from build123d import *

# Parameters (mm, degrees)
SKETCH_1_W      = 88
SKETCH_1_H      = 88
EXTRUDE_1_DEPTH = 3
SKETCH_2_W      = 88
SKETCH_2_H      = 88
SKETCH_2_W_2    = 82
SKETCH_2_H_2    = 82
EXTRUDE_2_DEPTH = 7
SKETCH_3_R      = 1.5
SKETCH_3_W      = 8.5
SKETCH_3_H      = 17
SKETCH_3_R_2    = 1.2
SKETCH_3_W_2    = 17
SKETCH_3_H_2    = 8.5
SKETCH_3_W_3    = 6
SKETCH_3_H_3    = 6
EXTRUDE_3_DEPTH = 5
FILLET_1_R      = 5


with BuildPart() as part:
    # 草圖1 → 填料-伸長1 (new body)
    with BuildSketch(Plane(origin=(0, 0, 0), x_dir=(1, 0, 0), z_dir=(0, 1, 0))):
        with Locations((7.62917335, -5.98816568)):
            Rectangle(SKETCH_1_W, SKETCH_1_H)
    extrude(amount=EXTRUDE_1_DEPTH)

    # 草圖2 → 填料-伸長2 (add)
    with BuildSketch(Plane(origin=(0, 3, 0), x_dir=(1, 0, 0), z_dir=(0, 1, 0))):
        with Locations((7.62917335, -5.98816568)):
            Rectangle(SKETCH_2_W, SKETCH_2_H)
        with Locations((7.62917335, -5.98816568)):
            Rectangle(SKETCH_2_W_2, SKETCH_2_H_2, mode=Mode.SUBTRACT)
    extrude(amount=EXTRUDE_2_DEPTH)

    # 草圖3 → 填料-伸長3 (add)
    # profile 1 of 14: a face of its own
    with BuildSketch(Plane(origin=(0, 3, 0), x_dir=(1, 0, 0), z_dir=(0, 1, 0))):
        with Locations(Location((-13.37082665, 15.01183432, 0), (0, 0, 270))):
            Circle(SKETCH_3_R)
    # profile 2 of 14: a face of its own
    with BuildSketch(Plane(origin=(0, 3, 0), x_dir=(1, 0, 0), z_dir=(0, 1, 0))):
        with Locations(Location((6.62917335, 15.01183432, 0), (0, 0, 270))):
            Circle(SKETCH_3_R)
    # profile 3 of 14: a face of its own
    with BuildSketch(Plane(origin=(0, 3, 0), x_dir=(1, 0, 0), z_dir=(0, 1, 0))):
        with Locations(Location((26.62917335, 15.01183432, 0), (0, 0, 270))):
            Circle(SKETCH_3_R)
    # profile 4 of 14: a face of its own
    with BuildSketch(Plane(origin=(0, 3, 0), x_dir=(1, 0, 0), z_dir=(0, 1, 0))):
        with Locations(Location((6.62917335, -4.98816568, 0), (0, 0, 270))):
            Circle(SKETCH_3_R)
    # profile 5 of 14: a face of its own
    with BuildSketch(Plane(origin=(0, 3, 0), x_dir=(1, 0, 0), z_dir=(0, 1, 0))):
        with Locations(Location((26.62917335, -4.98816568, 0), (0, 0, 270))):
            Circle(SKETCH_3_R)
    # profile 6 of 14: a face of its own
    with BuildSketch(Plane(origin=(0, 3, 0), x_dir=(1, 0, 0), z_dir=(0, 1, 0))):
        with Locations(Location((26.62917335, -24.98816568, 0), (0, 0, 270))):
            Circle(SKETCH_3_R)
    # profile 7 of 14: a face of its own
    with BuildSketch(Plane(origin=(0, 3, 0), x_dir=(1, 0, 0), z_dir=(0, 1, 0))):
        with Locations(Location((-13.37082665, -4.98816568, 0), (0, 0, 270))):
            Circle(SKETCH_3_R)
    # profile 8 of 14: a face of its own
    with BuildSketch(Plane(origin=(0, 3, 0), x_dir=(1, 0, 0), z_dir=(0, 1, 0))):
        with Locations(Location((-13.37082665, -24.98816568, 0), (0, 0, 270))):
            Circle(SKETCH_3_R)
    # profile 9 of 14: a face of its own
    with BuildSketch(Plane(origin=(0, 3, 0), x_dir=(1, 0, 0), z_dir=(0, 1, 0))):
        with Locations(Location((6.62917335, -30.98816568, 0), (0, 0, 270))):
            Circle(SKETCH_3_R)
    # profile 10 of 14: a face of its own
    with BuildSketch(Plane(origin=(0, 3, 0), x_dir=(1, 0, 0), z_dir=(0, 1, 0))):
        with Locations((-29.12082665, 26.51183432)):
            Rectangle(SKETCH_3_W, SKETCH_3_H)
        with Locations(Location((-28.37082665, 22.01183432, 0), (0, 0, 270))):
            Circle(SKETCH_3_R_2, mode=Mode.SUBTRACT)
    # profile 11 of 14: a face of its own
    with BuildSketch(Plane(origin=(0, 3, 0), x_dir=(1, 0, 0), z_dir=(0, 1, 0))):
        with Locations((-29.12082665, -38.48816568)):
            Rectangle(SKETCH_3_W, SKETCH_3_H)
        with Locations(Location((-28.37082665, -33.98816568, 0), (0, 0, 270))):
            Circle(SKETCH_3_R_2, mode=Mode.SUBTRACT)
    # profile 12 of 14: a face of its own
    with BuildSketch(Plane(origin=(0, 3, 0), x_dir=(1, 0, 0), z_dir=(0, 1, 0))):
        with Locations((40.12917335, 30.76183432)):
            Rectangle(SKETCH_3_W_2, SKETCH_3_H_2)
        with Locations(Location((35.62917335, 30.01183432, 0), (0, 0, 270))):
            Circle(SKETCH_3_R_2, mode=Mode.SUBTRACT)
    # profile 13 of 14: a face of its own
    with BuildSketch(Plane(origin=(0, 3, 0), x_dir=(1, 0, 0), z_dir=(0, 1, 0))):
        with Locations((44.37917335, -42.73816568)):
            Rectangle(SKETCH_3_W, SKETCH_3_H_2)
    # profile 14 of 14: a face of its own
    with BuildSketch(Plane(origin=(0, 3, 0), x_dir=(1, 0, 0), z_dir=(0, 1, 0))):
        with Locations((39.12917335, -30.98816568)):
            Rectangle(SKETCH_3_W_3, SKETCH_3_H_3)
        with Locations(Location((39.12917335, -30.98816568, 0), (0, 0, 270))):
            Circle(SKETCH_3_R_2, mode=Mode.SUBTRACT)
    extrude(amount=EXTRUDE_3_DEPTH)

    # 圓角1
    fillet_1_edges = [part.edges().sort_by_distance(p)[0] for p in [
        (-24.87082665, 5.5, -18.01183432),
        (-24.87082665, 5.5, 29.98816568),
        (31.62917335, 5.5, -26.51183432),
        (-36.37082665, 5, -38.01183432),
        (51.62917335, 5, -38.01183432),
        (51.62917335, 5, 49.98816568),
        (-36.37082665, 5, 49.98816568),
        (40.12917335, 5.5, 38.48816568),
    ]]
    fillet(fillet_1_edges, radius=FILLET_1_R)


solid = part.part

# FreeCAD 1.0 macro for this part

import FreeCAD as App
import Part
import Sketcher
Q = App.Units.Quantity


def edges_at(feature, points):
    """Names of the edges that pass closest to the given points."""
    edges = feature.Shape.Edges
    near = lambda p: min(range(len(edges)), key=lambda i: edges[i].distToShape(Part.Vertex(*p))[0])
    return sorted({f"Edge{near(p) + 1}" for p in points})


def add_polygon(sketch, points):
    """Adds a closed chain of lines whose ends are joined by coincident constraints."""
    first, n = sketch.GeometryCount, len(points)
    for a, b in zip(points, points[1:] + points[:1]):
        sketch.addGeometry(Part.LineSegment(App.Vector(*a, 0), App.Vector(*b, 0)), False)
    for i in range(n):
        sketch.addConstraint(Sketcher.Constraint("Coincident", first + i, 2, first + (i + 1) % n, 1))

doc = App.newDocument("Part")
params = doc.addObject("Spreadsheet::Sheet", "Params")
for row, (alias, value) in enumerate([
    ("sketch1_width", "88 mm"),
    ("pad1_length", "3 mm"),
    ("sketch2_width", "88 mm"),
    ("sketch2_width2", "82 mm"),
    ("pad2_length", "7 mm"),
    ("sketch3_diameter", "3 mm"),
    ("sketch3_diameter2", "2.4 mm"),
    ("sketch3_width", "17 mm"),
    ("sketch3_width2", "6 mm"),
    ("sketch3_width3", "8.5 mm"),
    ("pad3_length", "5 mm"),
    ("fillet_radius", "5 mm"),
], start=1):
    params.set(f"A{row}", alias)
    params.set(f"B{row}", "=" + value)
    params.setAlias(f"B{row}", alias)

body = doc.addObject("PartDesign::Body", "Body")

sketch1 = body.newObject("Sketcher::SketchObject", "Sketch")
sketch1.AttachmentSupport = (doc.getObject("XZ_Plane"), [""])
sketch1.MapMode = "FlatFace"
add_polygon(sketch1, [(-36.370827, -38.011834), (-36.370827, 49.988166), (51.629173, 49.988166), (51.629173, -38.011834)])
sketch1.addConstraint(Sketcher.Constraint("Vertical", 0))
sketch1.addConstraint(Sketcher.Constraint("Horizontal", 1))
sketch1.addConstraint(Sketcher.Constraint("Vertical", 2))
sketch1.addConstraint(Sketcher.Constraint("Horizontal", 3))
sketch1.addConstraint(Sketcher.Constraint("Equal", 3, 0))
sketch1.addConstraint(Sketcher.Constraint("DistanceX", 1, 1, 1, 2, Q("88 mm")))
sketch1.addConstraint(Sketcher.Constraint("DistanceX", 0, 2, -1, 1, Q("36.370827 mm")))
sketch1.addConstraint(Sketcher.Constraint("DistanceY", -1, 1, 0, 2, Q("49.988166 mm")))
sketch1.setExpression("Constraints[9]", "Params.sketch1_width")
pad1 = body.newObject("PartDesign::Pad", "Pad")
pad1.Profile = sketch1
pad1.setExpression("Length", "Params.pad1_length")
pad1.Reversed = True

sketch2 = body.newObject("Sketcher::SketchObject", "Sketch001")
sketch2.AttachmentSupport = (doc.getObject("XZ_Plane"), [""])
sketch2.MapMode = "FlatFace"
sketch2.AttachmentOffset = App.Placement(App.Vector(0, 0, -3), App.Rotation())
add_polygon(sketch2, [(-36.370827, -38.011834), (-36.370827, 49.988166), (51.629173, 49.988166), (51.629173, -38.011834)])
add_polygon(sketch2, [(48.629173, 46.988166), (-33.370827, 46.988166), (-33.370827, -35.011834), (48.629173, -35.011834)])
sketch2.addConstraint(Sketcher.Constraint("Vertical", 0))
sketch2.addConstraint(Sketcher.Constraint("Horizontal", 1))
sketch2.addConstraint(Sketcher.Constraint("Vertical", 2))
sketch2.addConstraint(Sketcher.Constraint("Horizontal", 3))
sketch2.addConstraint(Sketcher.Constraint("Horizontal", 4))
sketch2.addConstraint(Sketcher.Constraint("Vertical", 5))
sketch2.addConstraint(Sketcher.Constraint("Horizontal", 6))
sketch2.addConstraint(Sketcher.Constraint("Vertical", 7))
sketch2.addConstraint(Sketcher.Constraint("Equal", 3, 0))
sketch2.addConstraint(Sketcher.Constraint("Equal", 6, 5))
sketch2.addConstraint(Sketcher.Constraint("DistanceX", 1, 1, 1, 2, Q("88 mm")))
sketch2.addConstraint(Sketcher.Constraint("DistanceX", 4, 2, 4, 1, Q("82 mm")))
sketch2.addConstraint(Sketcher.Constraint("DistanceX", 0, 2, 4, 2, Q("3 mm")))
sketch2.addConstraint(Sketcher.Constraint("DistanceY", 4, 2, 0, 2, Q("3 mm")))
sketch2.addConstraint(Sketcher.Constraint("DistanceX", 0, 2, -1, 1, Q("36.370827 mm")))
sketch2.addConstraint(Sketcher.Constraint("DistanceY", -1, 1, 0, 2, Q("49.988166 mm")))
sketch2.setExpression("Constraints[18]", "Params.sketch2_width")
sketch2.setExpression("Constraints[19]", "Params.sketch2_width2")
pad2 = body.newObject("PartDesign::Pad", "Pad001")
pad2.Profile = sketch2
pad2.setExpression("Length", "Params.pad2_length")
pad2.Reversed = True

sketch3 = body.newObject("Sketcher::SketchObject", "Sketch002")
sketch3.AttachmentSupport = (doc.getObject("XZ_Plane"), [""])
sketch3.MapMode = "FlatFace"
sketch3.AttachmentOffset = App.Placement(App.Vector(0, 0, -3), App.Rotation())
sketch3.addGeometry(Part.Circle(App.Vector(-13.370827, -15.011834, 0), App.Vector(0, 0, 1), 1.5), False)
sketch3.addGeometry(Part.Circle(App.Vector(6.629173, -15.011834, 0), App.Vector(0, 0, 1), 1.5), False)
sketch3.addGeometry(Part.Circle(App.Vector(26.629173, -15.011834, 0), App.Vector(0, 0, 1), 1.5), False)
sketch3.addGeometry(Part.Circle(App.Vector(6.629173, 4.988166, 0), App.Vector(0, 0, 1), 1.5), False)
sketch3.addGeometry(Part.Circle(App.Vector(26.629173, 4.988166, 0), App.Vector(0, 0, 1), 1.5), False)
sketch3.addGeometry(Part.Circle(App.Vector(26.629173, 24.988166, 0), App.Vector(0, 0, 1), 1.5), False)
sketch3.addGeometry(Part.Circle(App.Vector(-13.370827, 4.988166, 0), App.Vector(0, 0, 1), 1.5), False)
sketch3.addGeometry(Part.Circle(App.Vector(-13.370827, 24.988166, 0), App.Vector(0, 0, 1), 1.5), False)
sketch3.addGeometry(Part.Circle(App.Vector(6.629173, 30.988166, 0), App.Vector(0, 0, 1), 1.5), False)
add_polygon(sketch3, [(-33.370827, -35.011834), (-33.370827, -18.011834), (-24.870827, -18.011834), (-24.870827, -35.011834)])
sketch3.addGeometry(Part.Circle(App.Vector(-28.370827, -22.011834, 0), App.Vector(0, 0, 1), 1.2), False)
add_polygon(sketch3, [(-33.370827, 29.988166), (-33.370827, 46.988166), (-24.870827, 46.988166), (-24.870827, 29.988166)])
sketch3.addGeometry(Part.Circle(App.Vector(-28.370827, 33.988166, 0), App.Vector(0, 0, 1), 1.2), False)
add_polygon(sketch3, [(31.629173, -35.011834), (31.629173, -26.511834), (48.629173, -26.511834), (48.629173, -35.011834)])
sketch3.addGeometry(Part.Circle(App.Vector(35.629173, -30.011834, 0), App.Vector(0, 0, 1), 1.2), False)
add_polygon(sketch3, [(40.129173, 38.488166), (40.129173, 46.988166), (48.629173, 46.988166), (48.629173, 38.488166)])
add_polygon(sketch3, [(36.129173, 27.988166), (36.129173, 33.988166), (42.129173, 33.988166), (42.129173, 27.988166)])
sketch3.addGeometry(Part.Circle(App.Vector(39.129173, 30.988166, 0), App.Vector(0, 0, 1), 1.2), False)
sketch3.addConstraint(Sketcher.Constraint("Vertical", 9))
sketch3.addConstraint(Sketcher.Constraint("Horizontal", 10))
sketch3.addConstraint(Sketcher.Constraint("Vertical", 11))
sketch3.addConstraint(Sketcher.Constraint("Horizontal", 12))
sketch3.addConstraint(Sketcher.Constraint("Vertical", 14))
sketch3.addConstraint(Sketcher.Constraint("Horizontal", 15))
sketch3.addConstraint(Sketcher.Constraint("Vertical", 16))
sketch3.addConstraint(Sketcher.Constraint("Horizontal", 17))
sketch3.addConstraint(Sketcher.Constraint("Vertical", 19))
sketch3.addConstraint(Sketcher.Constraint("Horizontal", 20))
sketch3.addConstraint(Sketcher.Constraint("Vertical", 21))
sketch3.addConstraint(Sketcher.Constraint("Horizontal", 22))
sketch3.addConstraint(Sketcher.Constraint("Vertical", 24))
sketch3.addConstraint(Sketcher.Constraint("Horizontal", 25))
sketch3.addConstraint(Sketcher.Constraint("Vertical", 26))
sketch3.addConstraint(Sketcher.Constraint("Horizontal", 27))
sketch3.addConstraint(Sketcher.Constraint("Vertical", 28))
sketch3.addConstraint(Sketcher.Constraint("Horizontal", 29))
sketch3.addConstraint(Sketcher.Constraint("Vertical", 30))
sketch3.addConstraint(Sketcher.Constraint("Horizontal", 31))
sketch3.addConstraint(Sketcher.Constraint("Equal", 0, 1))
sketch3.addConstraint(Sketcher.Constraint("Equal", 1, 2))
sketch3.addConstraint(Sketcher.Constraint("Equal", 2, 3))
sketch3.addConstraint(Sketcher.Constraint("Equal", 3, 4))
sketch3.addConstraint(Sketcher.Constraint("Equal", 4, 5))
sketch3.addConstraint(Sketcher.Constraint("Equal", 5, 6))
sketch3.addConstraint(Sketcher.Constraint("Equal", 6, 7))
sketch3.addConstraint(Sketcher.Constraint("Equal", 7, 8))
sketch3.addConstraint(Sketcher.Constraint("Equal", 13, 18))
sketch3.addConstraint(Sketcher.Constraint("Equal", 18, 23))
sketch3.addConstraint(Sketcher.Constraint("Equal", 23, 32))
sketch3.addConstraint(Sketcher.Constraint("Horizontal", 0, 3, 1, 3))
sketch3.addConstraint(Sketcher.Constraint("Horizontal", 1, 3, 2, 3))
sketch3.addConstraint(Sketcher.Constraint("Horizontal", 3, 3, 4, 3))
sketch3.addConstraint(Sketcher.Constraint("Horizontal", 4, 3, 6, 3))
sketch3.addConstraint(Sketcher.Constraint("Horizontal", 5, 3, 7, 3))
sketch3.addConstraint(Sketcher.Constraint("Horizontal", 8, 3, 32, 3))
sketch3.addConstraint(Sketcher.Constraint("Horizontal", 12, 2, 21, 2))
sketch3.addConstraint(Sketcher.Constraint("Horizontal", 15, 2, 24, 2))
sketch3.addConstraint(Sketcher.Constraint("Horizontal", 18, 3, 28, 2))
sketch3.addConstraint(Sketcher.Constraint("Vertical", 1, 3, 3, 3))
sketch3.addConstraint(Sketcher.Constraint("Vertical", 2, 3, 4, 3))
sketch3.addConstraint(Sketcher.Constraint("Vertical", 4, 3, 5, 3))
sketch3.addConstraint(Sketcher.Constraint("Vertical", 0, 3, 6, 3))
sketch3.addConstraint(Sketcher.Constraint("Vertical", 6, 3, 7, 3))
sketch3.addConstraint(Sketcher.Constraint("Vertical", 3, 3, 8, 3))
sketch3.addConstraint(Sketcher.Constraint("Vertical", 13, 3, 18, 3))
sketch3.addConstraint(Sketcher.Constraint("Vertical", 12, 2, 14, 2))
sketch3.addConstraint(Sketcher.Constraint("Vertical", 11, 2, 15, 2))
sketch3.addConstraint(Sketcher.Constraint("Vertical", 21, 2, 25, 2))
sketch3.addConstraint(Sketcher.Constraint("Equal", 17, 25))
sketch3.addConstraint(Sketcher.Constraint("Equal", 22, 9))
sketch3.addConstraint(Sketcher.Constraint("Equal", 11, 14))
sketch3.addConstraint(Sketcher.Constraint("Equal", 27, 19))
sketch3.addConstraint(Sketcher.Constraint("Equal", 21, 24))
sketch3.addConstraint(Sketcher.Constraint("Equal", 31, 28))
sketch3.addConstraint(Sketcher.Constraint("Diameter", 0, Q("3 mm")))
sketch3.addConstraint(Sketcher.Constraint("Diameter", 13, Q("2.4 mm")))
sketch3.addConstraint(Sketcher.Constraint("DistanceX", 20, 1, 20, 2, Q("17 mm")))
sketch3.addConstraint(Sketcher.Constraint("DistanceX", 29, 1, 29, 2, Q("6 mm")))
sketch3.addConstraint(Sketcher.Constraint("DistanceX", 10, 1, 10, 2, Q("8.5 mm")))
sketch3.addConstraint(Sketcher.Constraint("DistanceX", 0, 3, 1, 3, Q("20 mm")))
sketch3.addConstraint(Sketcher.Constraint("DistanceX", 1, 3, 2, 3, Q("20 mm")))
sketch3.addConstraint(Sketcher.Constraint("DistanceY", 1, 3, 3, 3, Q("20 mm")))
sketch3.addConstraint(Sketcher.Constraint("DistanceY", 4, 3, 5, 3, Q("20 mm")))
sketch3.addConstraint(Sketcher.Constraint("DistanceY", 5, 3, 8, 3, Q("6 mm")))
sketch3.addConstraint(Sketcher.Constraint("DistanceX", 13, 3, 0, 3, Q("15 mm")))
sketch3.addConstraint(Sketcher.Constraint("DistanceY", 13, 3, 0, 3, Q("7 mm")))
sketch3.addConstraint(Sketcher.Constraint("DistanceY", 7, 3, 18, 3, Q("9 mm")))
sketch3.addConstraint(Sketcher.Constraint("DistanceX", 2, 3, 23, 3, Q("9 mm")))
sketch3.addConstraint(Sketcher.Constraint("DistanceY", 23, 3, 2, 3, Q("15 mm")))
sketch3.addConstraint(Sketcher.Constraint("DistanceX", 9, 2, 13, 3, Q("5 mm")))
sketch3.addConstraint(Sketcher.Constraint("DistanceY", 13, 3, 9, 2, Q("4 mm")))
sketch3.addConstraint(Sketcher.Constraint("DistanceY", 18, 3, 14, 2, Q("13 mm")))
sketch3.addConstraint(Sketcher.Constraint("DistanceX", 19, 2, 23, 3, Q("4 mm")))
sketch3.addConstraint(Sketcher.Constraint("DistanceX", 32, 3, 24, 2, Q("1 mm")))
sketch3.addConstraint(Sketcher.Constraint("DistanceX", 28, 2, 32, 3, Q("3 mm")))
sketch3.addConstraint(Sketcher.Constraint("DistanceX", 0, 3, -1, 1, Q("13.370827 mm")))
sketch3.addConstraint(Sketcher.Constraint("DistanceY", 0, 3, -1, 1, Q("15.011834 mm")))
sketch3.setExpression("Constraints[76]", "Params.sketch3_diameter")
sketch3.setExpression("Constraints[77]", "Params.sketch3_diameter2")
sketch3.setExpression("Constraints[78]", "Params.sketch3_width")
sketch3.setExpression("Constraints[79]", "Params.sketch3_width2")
sketch3.setExpression("Constraints[80]", "Params.sketch3_width3")
pad3 = body.newObject("PartDesign::Pad", "Pad002")
pad3.Profile = sketch3
pad3.setExpression("Length", "Params.pad3_length")
pad3.Reversed = True
doc.recompute()

fillet = body.newObject("PartDesign::Fillet", "Fillet")
fillet.Base = (pad3, edges_at(pad3, [
    (-24.871, 5.5, -18.012),
    (-24.871, 5.5, 29.988),
    (31.629, 5.5, -26.512),
    (-36.371, 5, -38.012),
    (51.629, 5, -38.012),
    (51.629, 5, 49.988),
    (-36.371, 5, 49.988),
    (40.129, 5.5, 38.488),
]))
fillet.setExpression("Radius", "Params.fillet_radius")

doc.recompute()
